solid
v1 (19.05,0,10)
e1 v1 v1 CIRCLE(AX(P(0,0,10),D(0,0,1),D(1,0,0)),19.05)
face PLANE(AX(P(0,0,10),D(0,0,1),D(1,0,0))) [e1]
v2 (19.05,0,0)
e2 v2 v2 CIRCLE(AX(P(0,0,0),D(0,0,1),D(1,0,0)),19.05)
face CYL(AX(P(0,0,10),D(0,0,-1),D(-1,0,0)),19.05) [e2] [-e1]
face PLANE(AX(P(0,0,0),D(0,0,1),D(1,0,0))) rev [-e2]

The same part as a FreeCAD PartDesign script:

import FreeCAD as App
import Part
import Sketcher
Q = App.Units.Quantity

doc = App.newDocument("Part")
body = doc.addObject("PartDesign::Body", "Body")

# Sketch on XY plane
sketch1 = body.newObject("Sketcher::SketchObject", "Sketch")
sketch1.AttachmentSupport = (doc.getObject("XY_Plane"), [""])
sketch1.MapMode = "FlatFace"
sketch1.addGeometry(Part.Circle(App.Vector(0, 0, 0), App.Vector(0, 0, 1), 19), False)
sketch1.addConstraint(Sketcher.Constraint("Coincident", 0, 3, -1, 1))
sketch1.addConstraint(Sketcher.Constraint("Diameter", 0, Q("38.1 mm")))
pad1 = body.newObject("PartDesign::Pad", "Pad")
pad1.Profile = sketch1
pad1.Length = 10

doc.recompute()
